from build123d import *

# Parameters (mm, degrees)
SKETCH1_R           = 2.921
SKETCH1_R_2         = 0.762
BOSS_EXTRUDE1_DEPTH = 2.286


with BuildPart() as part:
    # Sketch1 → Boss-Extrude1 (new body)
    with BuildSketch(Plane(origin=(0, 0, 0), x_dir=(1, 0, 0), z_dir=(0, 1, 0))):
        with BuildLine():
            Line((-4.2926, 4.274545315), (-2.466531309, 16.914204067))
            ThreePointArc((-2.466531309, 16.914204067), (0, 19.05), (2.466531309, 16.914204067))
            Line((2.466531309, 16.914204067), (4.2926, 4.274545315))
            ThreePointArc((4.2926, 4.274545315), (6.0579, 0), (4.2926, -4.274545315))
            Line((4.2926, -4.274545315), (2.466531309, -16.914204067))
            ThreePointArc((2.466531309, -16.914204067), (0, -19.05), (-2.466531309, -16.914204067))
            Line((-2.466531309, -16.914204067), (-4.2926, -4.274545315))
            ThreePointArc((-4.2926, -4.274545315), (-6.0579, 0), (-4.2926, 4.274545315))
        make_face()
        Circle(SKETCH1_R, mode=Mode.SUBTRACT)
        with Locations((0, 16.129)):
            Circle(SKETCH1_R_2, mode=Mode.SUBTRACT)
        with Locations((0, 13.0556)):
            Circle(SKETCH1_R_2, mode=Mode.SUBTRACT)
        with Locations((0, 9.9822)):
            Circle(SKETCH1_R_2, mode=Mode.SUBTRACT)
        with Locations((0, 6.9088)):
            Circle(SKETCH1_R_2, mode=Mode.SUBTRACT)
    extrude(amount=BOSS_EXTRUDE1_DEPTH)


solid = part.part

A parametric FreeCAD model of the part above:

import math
import FreeCAD as App
import Part
import Sketcher
from FreeCAD import Vector
Q = App.Units.Quantity

doc = App.newDocument("Part")
params = doc.addObject("Spreadsheet::Sheet", "Params")
for row, (alias, value) in enumerate([
    ("sketch1_diameter", "0.23 in"),
    ("sketch1_diameter2", "0.06 in"),
    ("pad1_length", "0.09 in"),
], start=1):
    params.set(f"A{row}", alias)
    params.set(f"B{row}", "=" + value)
    params.setAlias(f"B{row}", alias)

body = doc.addObject("PartDesign::Body", "Body")

sketch1 = body.newObject("Sketcher::SketchObject", "Sketch")
sketch1.AttachmentSupport = (doc.getObject("XZ_Plane"), [""])
sketch1.MapMode = "FlatFace"
sketch1.addGeometry([
    Part.LineSegment(Vector(-2.5, -16.9, 0), Vector(-4.3, -4.3, 0)),
    Part.ArcOfCircle(Part.Circle(Vector(0, 0, 0), Vector(0, 0, 1), 6.1), math.radians(135), math.radians(225)),
    Part.LineSegment(Vector(-4.3, 4.3, 0), Vector(-2.5, 16.9, 0)),
    Part.ArcOfCircle(Part.Circle(Vector(0, 16.6, 0), Vector(0, 0, 1), 2.5), math.radians(8), math.radians(172)),
    Part.LineSegment(Vector(2.5, 16.9, 0), Vector(4.3, 4.3, 0)),
    Part.ArcOfCircle(Part.Circle(Vector(0, 0, 0), Vector(0, 0, 1), 6.1), math.radians(-45), math.radians(45)),
    Part.LineSegment(Vector(4.3, -4.3, 0), Vector(2.5, -16.9, 0)),
    Part.ArcOfCircle(Part.Circle(Vector(0, -16.6, 0), Vector(0, 0, 1), 2.5), math.radians(-172), math.radians(-8)),
    Part.Circle(Vector(0, 0, 0), Vector(0, 0, 1), 2.9),
    Part.Circle(Vector(0, -6.9, 0), Vector(0, 0, 1), 0.8),
    Part.Circle(Vector(0, -10, 0), Vector(0, 0, 1), 0.8),
    Part.Circle(Vector(0, -13.1, 0), Vector(0, 0, 1), 0.8),
    Part.Circle(Vector(0, -16.1, 0), Vector(0, 0, 1), 0.8),
], False)
sketch1.addConstraint([
    Sketcher.Constraint("Coincident", 0, 2, 1, 2),
    Sketcher.Constraint("Coincident", 1, 1, 2, 1),
    Sketcher.Constraint("Tangent", 2, 2, 3, 2),
    Sketcher.Constraint("Tangent", 3, 1, 4, 1),
    Sketcher.Constraint("Coincident", 4, 2, 5, 2),
    Sketcher.Constraint("Coincident", 5, 1, 6, 1),
    Sketcher.Constraint("Tangent", 6, 2, 7, 2),
    Sketcher.Constraint("Tangent", 7, 1, 0, 1),
    Sketcher.Constraint("Coincident", 1, 3, -1, 1),
    Sketcher.Constraint("Coincident", 5, 3, -1, 1),
    Sketcher.Constraint("Coincident", 8, 3, -1, 1),
    Sketcher.Constraint("Equal", 1, 5),
    Sketcher.Constraint("Equal", 3, 7),
    Sketcher.Constraint("Equal", 9, 10),
    Sketcher.Constraint("Equal", 10, 11),
    Sketcher.Constraint("Equal", 11, 12),
    Sketcher.Constraint("Symmetric", 3, 3, 7, 3, -1, 1),
    Sketcher.Constraint("Symmetric", 2, 2, 3, 1, -2),
    Sketcher.Constraint("PointOnObject", 9, 3, -2),
    Sketcher.Constraint("PointOnObject", 10, 3, -2),
    Sketcher.Constraint("PointOnObject", 11, 3, -2),
    Sketcher.Constraint("PointOnObject", 12, 3, -2),
    Sketcher.Constraint("Parallel", 0, 4),
    Sketcher.Constraint("Parallel", 2, 6),
    Sketcher.Constraint("Diameter", 8, Q("0.23 in")),
    Sketcher.Constraint("Diameter", 9, Q("0.06 in")),
    Sketcher.Constraint("Radius", 1, Q("0.2385 in")),
    Sketcher.Constraint("DistanceY", 9, 3, -1, 1, Q("0.272 in")),
    Sketcher.Constraint("DistanceY", 10, 3, -1, 1, Q("0.393 in")),
    Sketcher.Constraint("DistanceY", 11, 3, -1, 1, Q("0.514 in")),
    Sketcher.Constraint("DistanceY", 12, 3, -1, 1, Q("0.635 in")),
    Sketcher.Constraint("DistanceX", 0, 2, -1, 1, Q("0.169 in")),
    Sketcher.Constraint("Radius", 3, Q("2.492139 mm")),
    Sketcher.Constraint("DistanceY", -1, 1, 3, 3, Q("16.557861 mm")),
])
sketch1.setExpression("Constraints[24]", "Params.sketch1_diameter")
sketch1.setExpression("Constraints[25]", "Params.sketch1_diameter2")
pad1 = body.newObject("PartDesign::Pad", "Pad")
pad1.Profile = sketch1
pad1.setExpression("Length", "Params.pad1_length")
pad1.Reversed = True

doc.recompute()
